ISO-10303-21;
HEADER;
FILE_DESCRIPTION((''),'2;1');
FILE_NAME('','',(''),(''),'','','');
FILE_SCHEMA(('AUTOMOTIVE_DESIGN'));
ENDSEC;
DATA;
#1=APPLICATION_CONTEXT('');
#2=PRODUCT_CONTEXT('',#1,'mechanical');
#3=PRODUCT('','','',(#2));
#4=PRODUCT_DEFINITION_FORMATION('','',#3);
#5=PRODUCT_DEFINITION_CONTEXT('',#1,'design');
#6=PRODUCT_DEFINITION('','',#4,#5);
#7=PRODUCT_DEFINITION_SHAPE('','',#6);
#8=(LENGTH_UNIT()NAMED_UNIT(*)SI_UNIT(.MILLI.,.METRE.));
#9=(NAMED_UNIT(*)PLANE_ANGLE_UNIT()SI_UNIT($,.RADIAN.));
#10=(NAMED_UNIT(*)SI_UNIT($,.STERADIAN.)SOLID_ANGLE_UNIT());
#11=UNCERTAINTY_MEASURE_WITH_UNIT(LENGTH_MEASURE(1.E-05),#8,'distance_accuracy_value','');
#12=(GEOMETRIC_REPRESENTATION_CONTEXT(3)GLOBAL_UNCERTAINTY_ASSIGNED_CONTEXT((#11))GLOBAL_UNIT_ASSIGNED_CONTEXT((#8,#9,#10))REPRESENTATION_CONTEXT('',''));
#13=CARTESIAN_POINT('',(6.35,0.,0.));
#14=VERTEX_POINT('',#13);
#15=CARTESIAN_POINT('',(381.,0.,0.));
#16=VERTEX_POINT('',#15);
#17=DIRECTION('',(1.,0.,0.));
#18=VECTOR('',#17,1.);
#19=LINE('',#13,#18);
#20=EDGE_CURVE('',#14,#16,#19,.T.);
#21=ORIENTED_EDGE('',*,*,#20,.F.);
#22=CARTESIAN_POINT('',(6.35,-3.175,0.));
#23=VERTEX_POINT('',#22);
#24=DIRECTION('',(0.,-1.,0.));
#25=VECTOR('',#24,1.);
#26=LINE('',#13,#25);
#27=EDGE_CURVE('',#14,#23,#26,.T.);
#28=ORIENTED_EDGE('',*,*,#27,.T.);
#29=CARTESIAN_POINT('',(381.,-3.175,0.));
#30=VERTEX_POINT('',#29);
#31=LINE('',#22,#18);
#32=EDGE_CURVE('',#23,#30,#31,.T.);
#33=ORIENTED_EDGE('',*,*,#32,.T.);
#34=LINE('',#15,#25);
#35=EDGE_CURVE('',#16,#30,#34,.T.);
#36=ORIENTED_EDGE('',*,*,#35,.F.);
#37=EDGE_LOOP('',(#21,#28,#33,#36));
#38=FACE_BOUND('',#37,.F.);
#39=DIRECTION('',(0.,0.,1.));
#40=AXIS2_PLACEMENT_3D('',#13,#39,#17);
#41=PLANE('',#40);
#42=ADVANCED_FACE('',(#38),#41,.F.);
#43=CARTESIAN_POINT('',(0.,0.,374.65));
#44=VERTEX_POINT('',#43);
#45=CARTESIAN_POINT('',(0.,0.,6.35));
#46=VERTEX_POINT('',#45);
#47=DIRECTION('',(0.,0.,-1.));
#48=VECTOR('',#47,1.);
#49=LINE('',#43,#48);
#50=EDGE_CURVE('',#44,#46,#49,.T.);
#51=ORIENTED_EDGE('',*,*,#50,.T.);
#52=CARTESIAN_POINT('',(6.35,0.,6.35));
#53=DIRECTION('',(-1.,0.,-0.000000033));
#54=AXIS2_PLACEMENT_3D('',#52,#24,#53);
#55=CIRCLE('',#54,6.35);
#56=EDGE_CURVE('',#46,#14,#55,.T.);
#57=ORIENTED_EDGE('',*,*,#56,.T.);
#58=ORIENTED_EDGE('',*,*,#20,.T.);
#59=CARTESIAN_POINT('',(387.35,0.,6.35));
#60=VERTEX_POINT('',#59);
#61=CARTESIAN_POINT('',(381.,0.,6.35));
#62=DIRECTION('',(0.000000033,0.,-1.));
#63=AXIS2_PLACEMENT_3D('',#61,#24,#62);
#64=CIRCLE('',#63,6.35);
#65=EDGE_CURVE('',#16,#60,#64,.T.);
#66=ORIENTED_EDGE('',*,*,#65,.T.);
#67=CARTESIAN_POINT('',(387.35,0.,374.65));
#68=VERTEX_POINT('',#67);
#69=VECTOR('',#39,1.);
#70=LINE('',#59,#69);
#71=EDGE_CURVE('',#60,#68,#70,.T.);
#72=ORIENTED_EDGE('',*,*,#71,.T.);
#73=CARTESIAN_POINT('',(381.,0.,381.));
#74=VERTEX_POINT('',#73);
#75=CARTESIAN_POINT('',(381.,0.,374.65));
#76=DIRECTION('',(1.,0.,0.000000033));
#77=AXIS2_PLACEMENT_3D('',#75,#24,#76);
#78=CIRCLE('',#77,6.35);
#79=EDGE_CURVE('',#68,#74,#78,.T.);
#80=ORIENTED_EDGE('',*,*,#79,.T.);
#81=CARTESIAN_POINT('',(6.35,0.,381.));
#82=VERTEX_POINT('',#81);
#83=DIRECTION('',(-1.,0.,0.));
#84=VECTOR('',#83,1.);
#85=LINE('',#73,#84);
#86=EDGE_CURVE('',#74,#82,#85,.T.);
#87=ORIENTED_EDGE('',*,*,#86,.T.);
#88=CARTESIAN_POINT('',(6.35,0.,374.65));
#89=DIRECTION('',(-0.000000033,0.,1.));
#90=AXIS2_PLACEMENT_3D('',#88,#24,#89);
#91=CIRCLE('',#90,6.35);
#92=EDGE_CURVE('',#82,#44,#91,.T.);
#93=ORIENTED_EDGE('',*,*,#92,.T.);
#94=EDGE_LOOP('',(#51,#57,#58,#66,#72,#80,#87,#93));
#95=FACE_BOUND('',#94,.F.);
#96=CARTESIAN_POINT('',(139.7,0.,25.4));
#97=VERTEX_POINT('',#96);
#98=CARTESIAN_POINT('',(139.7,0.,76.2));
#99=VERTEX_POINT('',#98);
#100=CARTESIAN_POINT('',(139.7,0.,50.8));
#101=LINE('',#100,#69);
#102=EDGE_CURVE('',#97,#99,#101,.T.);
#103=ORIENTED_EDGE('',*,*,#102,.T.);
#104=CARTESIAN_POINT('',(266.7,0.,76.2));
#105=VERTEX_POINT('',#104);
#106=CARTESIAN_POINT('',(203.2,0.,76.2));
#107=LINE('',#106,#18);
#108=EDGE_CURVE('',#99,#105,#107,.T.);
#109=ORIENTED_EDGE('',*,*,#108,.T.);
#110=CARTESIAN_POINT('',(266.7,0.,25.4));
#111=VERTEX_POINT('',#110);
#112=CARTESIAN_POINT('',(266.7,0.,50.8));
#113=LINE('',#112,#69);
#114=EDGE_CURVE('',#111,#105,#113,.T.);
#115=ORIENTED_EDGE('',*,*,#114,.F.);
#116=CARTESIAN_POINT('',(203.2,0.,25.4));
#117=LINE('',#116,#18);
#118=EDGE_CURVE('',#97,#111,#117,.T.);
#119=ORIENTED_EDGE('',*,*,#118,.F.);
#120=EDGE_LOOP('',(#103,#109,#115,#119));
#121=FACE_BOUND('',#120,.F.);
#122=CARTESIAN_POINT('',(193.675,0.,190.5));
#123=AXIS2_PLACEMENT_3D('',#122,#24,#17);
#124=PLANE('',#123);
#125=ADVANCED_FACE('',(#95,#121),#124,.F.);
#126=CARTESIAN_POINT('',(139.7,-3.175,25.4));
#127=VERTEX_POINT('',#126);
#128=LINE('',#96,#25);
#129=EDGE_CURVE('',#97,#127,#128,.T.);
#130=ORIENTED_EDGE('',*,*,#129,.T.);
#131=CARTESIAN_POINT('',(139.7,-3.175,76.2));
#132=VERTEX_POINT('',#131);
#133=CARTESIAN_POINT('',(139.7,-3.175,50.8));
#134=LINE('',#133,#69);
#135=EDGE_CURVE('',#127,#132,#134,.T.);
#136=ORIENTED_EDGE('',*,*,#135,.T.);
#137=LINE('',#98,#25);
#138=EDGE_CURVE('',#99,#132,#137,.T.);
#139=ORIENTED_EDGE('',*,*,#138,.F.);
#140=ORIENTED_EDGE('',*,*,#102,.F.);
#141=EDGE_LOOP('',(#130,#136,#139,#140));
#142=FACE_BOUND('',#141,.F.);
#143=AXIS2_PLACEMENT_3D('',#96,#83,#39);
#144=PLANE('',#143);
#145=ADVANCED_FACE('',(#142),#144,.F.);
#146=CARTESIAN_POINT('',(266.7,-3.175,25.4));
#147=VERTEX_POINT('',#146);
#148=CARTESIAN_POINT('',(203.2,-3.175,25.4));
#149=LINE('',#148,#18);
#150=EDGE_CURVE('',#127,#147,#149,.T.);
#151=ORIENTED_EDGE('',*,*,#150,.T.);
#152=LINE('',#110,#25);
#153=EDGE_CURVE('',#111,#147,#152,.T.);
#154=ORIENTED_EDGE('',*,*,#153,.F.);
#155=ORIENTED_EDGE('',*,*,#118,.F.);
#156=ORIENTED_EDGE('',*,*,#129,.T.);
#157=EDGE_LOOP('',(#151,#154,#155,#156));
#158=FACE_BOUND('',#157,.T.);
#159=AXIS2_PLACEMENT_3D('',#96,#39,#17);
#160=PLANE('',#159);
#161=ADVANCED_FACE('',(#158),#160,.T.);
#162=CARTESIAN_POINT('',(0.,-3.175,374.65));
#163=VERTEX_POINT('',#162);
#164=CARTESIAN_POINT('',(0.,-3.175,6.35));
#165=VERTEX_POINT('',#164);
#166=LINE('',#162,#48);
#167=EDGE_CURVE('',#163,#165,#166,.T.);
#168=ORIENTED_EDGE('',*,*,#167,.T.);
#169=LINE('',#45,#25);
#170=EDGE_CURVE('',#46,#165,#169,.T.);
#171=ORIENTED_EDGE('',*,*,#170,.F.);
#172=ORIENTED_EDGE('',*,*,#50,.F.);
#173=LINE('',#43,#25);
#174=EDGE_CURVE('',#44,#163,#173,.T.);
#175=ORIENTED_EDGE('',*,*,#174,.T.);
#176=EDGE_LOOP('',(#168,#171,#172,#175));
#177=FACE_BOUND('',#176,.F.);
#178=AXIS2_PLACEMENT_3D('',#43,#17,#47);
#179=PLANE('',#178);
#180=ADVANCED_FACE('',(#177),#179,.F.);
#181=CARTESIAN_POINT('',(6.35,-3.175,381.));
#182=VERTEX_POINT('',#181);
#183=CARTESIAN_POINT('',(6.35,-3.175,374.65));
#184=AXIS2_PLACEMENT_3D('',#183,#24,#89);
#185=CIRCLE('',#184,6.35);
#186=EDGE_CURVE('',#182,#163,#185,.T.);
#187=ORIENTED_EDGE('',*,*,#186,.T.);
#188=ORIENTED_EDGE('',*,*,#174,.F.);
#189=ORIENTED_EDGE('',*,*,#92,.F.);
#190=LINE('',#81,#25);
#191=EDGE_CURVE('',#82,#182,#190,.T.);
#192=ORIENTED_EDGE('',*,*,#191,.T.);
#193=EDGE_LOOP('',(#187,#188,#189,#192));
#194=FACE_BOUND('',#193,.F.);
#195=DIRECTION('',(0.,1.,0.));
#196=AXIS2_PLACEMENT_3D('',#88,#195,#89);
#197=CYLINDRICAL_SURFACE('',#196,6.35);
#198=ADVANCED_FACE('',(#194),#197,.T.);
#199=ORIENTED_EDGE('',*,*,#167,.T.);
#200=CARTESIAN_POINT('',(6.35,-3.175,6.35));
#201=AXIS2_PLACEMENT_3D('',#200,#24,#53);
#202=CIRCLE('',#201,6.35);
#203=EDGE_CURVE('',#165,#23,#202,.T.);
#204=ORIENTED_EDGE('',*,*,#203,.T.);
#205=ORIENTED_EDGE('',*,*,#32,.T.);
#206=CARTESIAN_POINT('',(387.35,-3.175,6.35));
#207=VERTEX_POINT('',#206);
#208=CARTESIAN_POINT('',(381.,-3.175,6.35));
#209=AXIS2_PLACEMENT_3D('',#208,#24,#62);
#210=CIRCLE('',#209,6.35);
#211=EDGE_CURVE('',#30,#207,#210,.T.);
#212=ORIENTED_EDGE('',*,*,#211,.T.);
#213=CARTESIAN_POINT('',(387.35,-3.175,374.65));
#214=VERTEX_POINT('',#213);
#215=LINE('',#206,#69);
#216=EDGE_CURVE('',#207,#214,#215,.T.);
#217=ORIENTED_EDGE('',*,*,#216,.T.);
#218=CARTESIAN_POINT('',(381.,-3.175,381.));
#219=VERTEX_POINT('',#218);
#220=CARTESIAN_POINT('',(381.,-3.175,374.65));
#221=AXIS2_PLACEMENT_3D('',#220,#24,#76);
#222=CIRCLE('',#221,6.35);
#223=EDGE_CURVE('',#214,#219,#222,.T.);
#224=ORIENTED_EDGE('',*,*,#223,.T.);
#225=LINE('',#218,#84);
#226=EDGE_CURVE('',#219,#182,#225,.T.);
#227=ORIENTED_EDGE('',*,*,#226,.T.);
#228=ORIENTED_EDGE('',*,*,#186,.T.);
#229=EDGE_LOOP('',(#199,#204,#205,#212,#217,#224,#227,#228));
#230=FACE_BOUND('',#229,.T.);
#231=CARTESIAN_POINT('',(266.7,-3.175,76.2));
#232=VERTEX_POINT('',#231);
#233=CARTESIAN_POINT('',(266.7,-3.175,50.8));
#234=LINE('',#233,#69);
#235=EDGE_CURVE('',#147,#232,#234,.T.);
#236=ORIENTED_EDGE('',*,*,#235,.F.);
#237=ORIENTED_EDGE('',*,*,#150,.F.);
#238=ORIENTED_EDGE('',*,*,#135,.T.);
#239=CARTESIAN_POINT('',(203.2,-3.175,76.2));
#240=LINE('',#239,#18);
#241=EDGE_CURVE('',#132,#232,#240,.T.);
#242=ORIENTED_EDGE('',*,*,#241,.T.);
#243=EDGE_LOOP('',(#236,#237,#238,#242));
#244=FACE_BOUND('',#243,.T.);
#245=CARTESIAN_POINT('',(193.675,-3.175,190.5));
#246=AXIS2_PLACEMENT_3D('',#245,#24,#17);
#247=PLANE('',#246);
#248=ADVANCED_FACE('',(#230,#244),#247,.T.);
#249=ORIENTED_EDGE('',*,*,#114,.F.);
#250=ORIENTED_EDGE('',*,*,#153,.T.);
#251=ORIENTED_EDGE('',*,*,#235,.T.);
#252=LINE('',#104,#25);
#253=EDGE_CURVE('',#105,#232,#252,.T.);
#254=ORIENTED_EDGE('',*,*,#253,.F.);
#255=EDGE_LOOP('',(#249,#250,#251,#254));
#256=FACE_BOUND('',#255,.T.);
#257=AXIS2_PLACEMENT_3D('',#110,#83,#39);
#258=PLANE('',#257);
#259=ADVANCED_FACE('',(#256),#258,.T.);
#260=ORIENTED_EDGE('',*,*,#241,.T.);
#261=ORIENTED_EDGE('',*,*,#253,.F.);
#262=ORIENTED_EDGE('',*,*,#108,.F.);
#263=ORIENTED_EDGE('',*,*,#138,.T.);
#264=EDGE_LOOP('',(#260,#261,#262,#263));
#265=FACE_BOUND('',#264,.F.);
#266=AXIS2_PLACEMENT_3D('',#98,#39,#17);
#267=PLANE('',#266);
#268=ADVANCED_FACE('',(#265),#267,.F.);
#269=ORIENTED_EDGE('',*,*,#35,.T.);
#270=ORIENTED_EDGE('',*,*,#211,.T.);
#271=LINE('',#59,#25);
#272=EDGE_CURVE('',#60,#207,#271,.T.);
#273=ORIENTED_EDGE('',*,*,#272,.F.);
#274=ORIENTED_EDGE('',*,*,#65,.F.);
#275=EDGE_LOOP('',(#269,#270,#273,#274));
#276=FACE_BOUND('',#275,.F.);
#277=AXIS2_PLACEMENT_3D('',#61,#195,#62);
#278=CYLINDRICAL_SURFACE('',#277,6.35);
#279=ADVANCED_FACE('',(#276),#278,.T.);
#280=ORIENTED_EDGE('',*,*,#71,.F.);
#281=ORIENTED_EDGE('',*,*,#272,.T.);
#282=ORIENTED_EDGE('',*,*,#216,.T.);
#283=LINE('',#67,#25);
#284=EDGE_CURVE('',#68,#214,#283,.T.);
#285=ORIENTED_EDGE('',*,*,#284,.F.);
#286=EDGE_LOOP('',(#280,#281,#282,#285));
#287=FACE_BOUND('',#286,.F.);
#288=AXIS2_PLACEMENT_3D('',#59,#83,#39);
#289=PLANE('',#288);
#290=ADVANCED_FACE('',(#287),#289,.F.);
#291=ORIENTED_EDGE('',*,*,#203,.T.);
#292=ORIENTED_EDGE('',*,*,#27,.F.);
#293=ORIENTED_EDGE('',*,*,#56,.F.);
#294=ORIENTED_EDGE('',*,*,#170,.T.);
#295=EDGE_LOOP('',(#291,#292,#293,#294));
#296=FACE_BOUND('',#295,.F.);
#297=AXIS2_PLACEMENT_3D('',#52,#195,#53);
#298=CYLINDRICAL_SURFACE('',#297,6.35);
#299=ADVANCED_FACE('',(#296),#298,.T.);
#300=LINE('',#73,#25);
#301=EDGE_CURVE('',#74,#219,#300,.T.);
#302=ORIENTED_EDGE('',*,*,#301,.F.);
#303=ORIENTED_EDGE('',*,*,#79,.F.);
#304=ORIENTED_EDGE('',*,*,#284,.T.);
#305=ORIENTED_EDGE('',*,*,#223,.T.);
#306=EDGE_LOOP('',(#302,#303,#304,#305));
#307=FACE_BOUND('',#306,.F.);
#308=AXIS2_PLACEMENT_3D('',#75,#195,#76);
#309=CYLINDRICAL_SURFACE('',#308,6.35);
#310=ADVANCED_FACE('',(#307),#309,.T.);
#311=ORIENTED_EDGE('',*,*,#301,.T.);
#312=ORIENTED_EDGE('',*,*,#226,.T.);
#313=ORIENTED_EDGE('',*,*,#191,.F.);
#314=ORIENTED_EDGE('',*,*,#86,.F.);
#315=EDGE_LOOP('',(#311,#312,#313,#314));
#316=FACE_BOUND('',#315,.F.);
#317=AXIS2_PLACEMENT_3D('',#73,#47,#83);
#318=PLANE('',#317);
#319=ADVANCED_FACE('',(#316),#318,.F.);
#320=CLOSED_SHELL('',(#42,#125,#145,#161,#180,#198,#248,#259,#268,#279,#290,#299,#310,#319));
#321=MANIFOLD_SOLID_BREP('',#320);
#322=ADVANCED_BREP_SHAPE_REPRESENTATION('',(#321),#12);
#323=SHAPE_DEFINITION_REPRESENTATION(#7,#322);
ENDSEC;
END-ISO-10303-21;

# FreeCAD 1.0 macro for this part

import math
import FreeCAD as App
import Part
import Sketcher

V = App.Vector
Q = App.Units.Quantity


def add_polygon(sketch, points):
    """Adds a closed chain of lines whose ends are joined by coincident constraints."""
    first, n = sketch.GeometryCount, len(points)
    for a, b in zip(points, points[1:] + points[:1]):
        sketch.addGeometry(Part.LineSegment(App.Vector(*a, 0), App.Vector(*b, 0)), False)
    for i in range(n):
        sketch.addConstraint(Sketcher.Constraint("Coincident", first + i, 2, first + (i + 1) % n, 1))

doc = App.newDocument("Part")
body = doc.addObject("PartDesign::Body", "Body")

sketch1 = doc.addObject("Sketcher::SketchObject", "Sketch")
body.addObject(sketch1)
sketch1.AttachmentSupport = (doc.XZ_Plane, [""])
sketch1.MapMode = "FlatFace"
sketch1.addGeometry(Part.ArcOfCircle(Part.Circle(V(6, 6, 0), V(0, 0, 1), 6), math.radians(-180), math.radians(-90)), False)
sketch1.addGeometry(Part.LineSegment(V(6, 0, 0), V(381, 0, 0)), False)
sketch1.addGeometry(Part.ArcOfCircle(Part.Circle(V(381, 6, 0), V(0, 0, 1), 6), math.radians(-90), math.radians(0)), False)
sketch1.addGeometry(Part.LineSegment(V(387, 6, 0), V(387, 375, 0)), False)
sketch1.addGeometry(Part.ArcOfCircle(Part.Circle(V(381, 375, 0), V(0, 0, 1), 6), math.radians(0), math.radians(90)), False)
sketch1.addGeometry(Part.LineSegment(V(381, 381, 0), V(6, 381, 0)), False)
sketch1.addGeometry(Part.ArcOfCircle(Part.Circle(V(6, 375, 0), V(0, 0, 1), 6), math.radians(90), math.radians(180)), False)
sketch1.addGeometry(Part.LineSegment(V(0, 375, 0), V(0, 6, 0)), False)
add_polygon(sketch1, [(267, 25), (140, 25), (140, 76), (267, 76)])
sketch1.addConstraint(Sketcher.Constraint("Tangent", 0, 2, 1, 1))
sketch1.addConstraint(Sketcher.Constraint("Tangent", 1, 2, 2, 1))
sketch1.addConstraint(Sketcher.Constraint("Tangent", 2, 2, 3, 1))
sketch1.addConstraint(Sketcher.Constraint("Tangent", 3, 2, 4, 1))
sketch1.addConstraint(Sketcher.Constraint("Tangent", 4, 2, 5, 1))
sketch1.addConstraint(Sketcher.Constraint("Tangent", 5, 2, 6, 1))
sketch1.addConstraint(Sketcher.Constraint("Tangent", 6, 2, 7, 1))
sketch1.addConstraint(Sketcher.Constraint("Tangent", 7, 2, 0, 1))
sketch1.addConstraint(Sketcher.Constraint("Horizontal", 1))
sketch1.addConstraint(Sketcher.Constraint("Vertical", 3))
sketch1.addConstraint(Sketcher.Constraint("Horizontal", 5))
sketch1.addConstraint(Sketcher.Constraint("Vertical", 7))
sketch1.addConstraint(Sketcher.Constraint("Horizontal", 8))
sketch1.addConstraint(Sketcher.Constraint("Vertical", 9))
sketch1.addConstraint(Sketcher.Constraint("Horizontal", 10))
sketch1.addConstraint(Sketcher.Constraint("Vertical", 11))
sketch1.addConstraint(Sketcher.Constraint("Equal", 0, 2))
sketch1.addConstraint(Sketcher.Constraint("Equal", 2, 4))
sketch1.addConstraint(Sketcher.Constraint("Equal", 4, 6))
sketch1.addConstraint(Sketcher.Constraint("PointOnObject", 0, 2, -1))
sketch1.addConstraint(Sketcher.Constraint("PointOnObject", 6, 2, -2))
sketch1.addConstraint(Sketcher.Constraint("DistanceX", 8, 2, 8, 1, Q("5 in")))
sketch1.addConstraint(Sketcher.Constraint("DistanceY", 9, 1, 9, 2, Q("2 in")))
sketch1.addConstraint(Sketcher.Constraint("Radius", 0, Q("0.25 in")))
sketch1.addConstraint(Sketcher.Constraint("DistanceY", 3, 1, 3, 2, Q("14.5 in")))
sketch1.addConstraint(Sketcher.Constraint("DistanceX", -1, 1, 2, 3, Q("15 in")))
sketch1.addConstraint(Sketcher.Constraint("DistanceY", -1, 1, 8, 2, Q("1 in")))
sketch1.addConstraint(Sketcher.Constraint("DistanceX", -1, 1, 8, 2, Q("5.5 in")))
pad1 = doc.addObject("PartDesign::Pad", "Pad")
body.addObject(pad1)
pad1.Profile = sketch1
pad1.Length = Q("0.125 in")

doc.recompute()
